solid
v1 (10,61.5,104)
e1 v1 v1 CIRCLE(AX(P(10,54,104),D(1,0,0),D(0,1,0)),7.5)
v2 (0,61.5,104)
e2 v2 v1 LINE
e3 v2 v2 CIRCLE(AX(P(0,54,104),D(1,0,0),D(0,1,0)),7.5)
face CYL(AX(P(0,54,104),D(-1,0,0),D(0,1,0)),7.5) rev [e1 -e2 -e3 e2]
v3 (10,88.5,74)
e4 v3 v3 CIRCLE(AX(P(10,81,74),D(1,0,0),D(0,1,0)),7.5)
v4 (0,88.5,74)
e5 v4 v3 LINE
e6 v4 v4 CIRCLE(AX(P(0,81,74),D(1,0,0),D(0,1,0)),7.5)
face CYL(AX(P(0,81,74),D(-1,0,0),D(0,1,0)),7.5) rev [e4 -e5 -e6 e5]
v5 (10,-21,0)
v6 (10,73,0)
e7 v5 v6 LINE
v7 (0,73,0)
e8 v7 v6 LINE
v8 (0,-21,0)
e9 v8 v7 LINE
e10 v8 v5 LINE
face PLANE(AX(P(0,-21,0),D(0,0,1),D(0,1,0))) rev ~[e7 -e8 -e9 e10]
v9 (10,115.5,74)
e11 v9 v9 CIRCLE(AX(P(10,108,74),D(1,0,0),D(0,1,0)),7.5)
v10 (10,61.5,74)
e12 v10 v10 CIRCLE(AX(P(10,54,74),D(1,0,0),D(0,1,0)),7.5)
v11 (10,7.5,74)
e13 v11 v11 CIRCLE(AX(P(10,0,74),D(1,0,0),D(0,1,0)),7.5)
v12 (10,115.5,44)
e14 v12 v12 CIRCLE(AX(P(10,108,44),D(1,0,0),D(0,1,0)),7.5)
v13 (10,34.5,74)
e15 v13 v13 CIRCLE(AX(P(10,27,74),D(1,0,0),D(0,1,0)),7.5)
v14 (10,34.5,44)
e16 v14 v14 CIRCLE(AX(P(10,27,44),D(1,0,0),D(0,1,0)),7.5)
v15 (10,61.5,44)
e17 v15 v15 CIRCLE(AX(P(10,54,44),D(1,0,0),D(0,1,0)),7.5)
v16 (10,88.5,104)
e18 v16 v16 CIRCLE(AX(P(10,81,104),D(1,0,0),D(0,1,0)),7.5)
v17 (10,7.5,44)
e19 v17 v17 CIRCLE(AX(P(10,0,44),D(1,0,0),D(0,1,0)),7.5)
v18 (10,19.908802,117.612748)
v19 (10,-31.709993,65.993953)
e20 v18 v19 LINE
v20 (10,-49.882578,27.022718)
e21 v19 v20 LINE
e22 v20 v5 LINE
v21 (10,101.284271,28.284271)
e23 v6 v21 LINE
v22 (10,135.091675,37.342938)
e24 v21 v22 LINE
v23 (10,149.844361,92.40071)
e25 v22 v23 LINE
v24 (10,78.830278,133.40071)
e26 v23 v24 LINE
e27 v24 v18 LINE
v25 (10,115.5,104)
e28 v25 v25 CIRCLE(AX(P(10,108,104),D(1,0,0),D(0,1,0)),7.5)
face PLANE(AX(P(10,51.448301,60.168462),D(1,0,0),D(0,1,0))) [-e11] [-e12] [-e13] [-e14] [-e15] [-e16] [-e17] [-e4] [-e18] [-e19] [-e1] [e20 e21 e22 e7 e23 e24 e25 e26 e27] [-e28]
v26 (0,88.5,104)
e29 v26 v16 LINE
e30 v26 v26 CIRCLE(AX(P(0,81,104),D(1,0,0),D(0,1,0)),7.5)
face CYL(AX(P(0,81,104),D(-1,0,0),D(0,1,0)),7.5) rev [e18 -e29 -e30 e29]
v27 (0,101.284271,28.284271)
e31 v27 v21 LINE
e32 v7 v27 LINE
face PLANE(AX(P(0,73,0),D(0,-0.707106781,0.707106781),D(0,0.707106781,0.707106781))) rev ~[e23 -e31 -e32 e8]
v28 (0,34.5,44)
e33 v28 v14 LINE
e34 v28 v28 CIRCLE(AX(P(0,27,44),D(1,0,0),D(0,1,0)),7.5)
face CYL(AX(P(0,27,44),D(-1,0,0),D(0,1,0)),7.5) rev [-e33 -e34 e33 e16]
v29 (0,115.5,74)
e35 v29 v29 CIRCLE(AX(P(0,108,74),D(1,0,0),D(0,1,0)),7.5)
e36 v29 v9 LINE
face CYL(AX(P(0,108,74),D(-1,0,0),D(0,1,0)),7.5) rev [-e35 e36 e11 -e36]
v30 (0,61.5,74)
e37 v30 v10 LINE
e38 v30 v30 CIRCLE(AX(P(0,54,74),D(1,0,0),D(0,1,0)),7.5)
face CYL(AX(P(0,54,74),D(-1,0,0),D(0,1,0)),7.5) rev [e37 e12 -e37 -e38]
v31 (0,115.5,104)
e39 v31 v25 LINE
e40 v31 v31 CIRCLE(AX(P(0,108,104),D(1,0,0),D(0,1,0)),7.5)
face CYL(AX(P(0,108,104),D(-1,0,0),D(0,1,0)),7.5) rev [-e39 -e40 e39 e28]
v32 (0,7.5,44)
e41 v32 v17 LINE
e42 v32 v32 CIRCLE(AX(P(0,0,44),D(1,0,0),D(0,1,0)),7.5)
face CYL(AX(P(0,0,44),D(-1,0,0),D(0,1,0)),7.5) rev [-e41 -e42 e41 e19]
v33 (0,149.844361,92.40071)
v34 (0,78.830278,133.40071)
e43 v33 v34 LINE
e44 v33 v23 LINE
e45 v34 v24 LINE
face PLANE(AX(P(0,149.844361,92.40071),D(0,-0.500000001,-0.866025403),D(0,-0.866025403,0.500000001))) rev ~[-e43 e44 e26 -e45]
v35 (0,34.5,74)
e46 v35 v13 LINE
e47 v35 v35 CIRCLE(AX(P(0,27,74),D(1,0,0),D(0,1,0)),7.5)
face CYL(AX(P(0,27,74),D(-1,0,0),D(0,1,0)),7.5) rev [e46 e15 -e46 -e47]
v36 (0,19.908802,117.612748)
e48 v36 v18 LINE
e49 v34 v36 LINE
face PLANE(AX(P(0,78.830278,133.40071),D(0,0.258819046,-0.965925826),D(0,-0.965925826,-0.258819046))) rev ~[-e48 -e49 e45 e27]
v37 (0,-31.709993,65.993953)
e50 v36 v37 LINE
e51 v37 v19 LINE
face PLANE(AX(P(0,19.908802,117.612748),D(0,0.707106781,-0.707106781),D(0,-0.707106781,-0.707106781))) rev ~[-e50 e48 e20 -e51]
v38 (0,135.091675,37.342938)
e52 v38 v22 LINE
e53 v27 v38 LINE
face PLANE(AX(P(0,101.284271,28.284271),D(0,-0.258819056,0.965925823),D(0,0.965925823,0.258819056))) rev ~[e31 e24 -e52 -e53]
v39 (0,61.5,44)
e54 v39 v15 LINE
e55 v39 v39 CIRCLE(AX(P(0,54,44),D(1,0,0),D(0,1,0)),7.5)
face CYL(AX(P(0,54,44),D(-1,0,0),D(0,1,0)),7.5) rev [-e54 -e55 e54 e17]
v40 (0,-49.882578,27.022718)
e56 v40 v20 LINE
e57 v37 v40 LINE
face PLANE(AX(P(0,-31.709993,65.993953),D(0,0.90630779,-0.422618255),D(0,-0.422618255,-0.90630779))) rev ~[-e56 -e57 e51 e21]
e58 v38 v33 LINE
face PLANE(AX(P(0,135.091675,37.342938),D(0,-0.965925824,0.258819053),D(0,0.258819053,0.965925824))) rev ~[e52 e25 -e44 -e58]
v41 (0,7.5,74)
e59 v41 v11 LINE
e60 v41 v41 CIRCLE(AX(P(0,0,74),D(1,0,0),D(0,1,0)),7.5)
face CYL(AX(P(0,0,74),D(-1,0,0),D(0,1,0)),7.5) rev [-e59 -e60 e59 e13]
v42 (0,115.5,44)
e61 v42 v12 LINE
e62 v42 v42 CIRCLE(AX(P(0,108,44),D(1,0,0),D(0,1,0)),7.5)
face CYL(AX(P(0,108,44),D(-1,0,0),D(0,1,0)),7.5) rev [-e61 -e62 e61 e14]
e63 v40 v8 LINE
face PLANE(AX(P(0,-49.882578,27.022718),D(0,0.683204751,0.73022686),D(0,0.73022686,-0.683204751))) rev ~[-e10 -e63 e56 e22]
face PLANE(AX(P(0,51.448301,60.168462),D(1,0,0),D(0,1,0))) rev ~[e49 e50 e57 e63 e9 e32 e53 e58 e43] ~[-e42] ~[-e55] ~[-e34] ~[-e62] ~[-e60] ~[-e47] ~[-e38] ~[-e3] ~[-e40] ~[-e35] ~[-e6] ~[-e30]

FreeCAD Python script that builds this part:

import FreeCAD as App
import Part
import Sketcher

V = App.Vector
Q = App.Units.Quantity

doc = App.newDocument("Part")
body = doc.addObject("PartDesign::Body", "Body")

# Sketch on YZ plane
sketch1 = body.newObject("Sketcher::SketchObject", "Sketch")
sketch1.AttachmentSupport = (doc.getObject("YZ_Plane"), [""])
sketch1.MapMode = "FlatFace"
sketch1.addGeometry([
    Part.LineSegment(V(-21, 0, 0), V(73, 0, 0)),  # 0
    Part.LineSegment(V(73, 0, 0), V(101, 28, 0)),  # 1
    Part.LineSegment(V(101, 28, 0), V(135, 37, 0)),  # 2
    Part.LineSegment(V(135, 37, 0), V(150, 92, 0)),  # 3
    Part.LineSegment(V(150, 92, 0), V(79, 133, 0)),  # 4
    Part.LineSegment(V(79, 133, 0), V(20, 118, 0)),  # 5
    Part.LineSegment(V(20, 118, 0), V(-32, 66, 0)),  # 6
    Part.LineSegment(V(-32, 66, 0), V(-50, 27, 0)),  # 7
    Part.LineSegment(V(-50, 27, 0), V(-21, 0, 0)),  # 8
    Part.Circle(V(0, 44, 0), V(0, 0, 1), 8),  # 9
    Part.Circle(V(27, 44, 0), V(0, 0, 1), 8),  # 10
    Part.Circle(V(54, 44, 0), V(0, 0, 1), 8),  # 11
    Part.Circle(V(108, 44, 0), V(0, 0, 1), 8),  # 12
    Part.Circle(V(0, 74, 0), V(0, 0, 1), 8),  # 13
    Part.Circle(V(27, 74, 0), V(0, 0, 1), 8),  # 14
    Part.Circle(V(54, 74, 0), V(0, 0, 1), 8),  # 15
    Part.Circle(V(81, 74, 0), V(0, 0, 1), 8),  # 16
    Part.Circle(V(108, 74, 0), V(0, 0, 1), 8),  # 17
    Part.Circle(V(54, 104, 0), V(0, 0, 1), 8),  # 18
    Part.Circle(V(81, 104, 0), V(0, 0, 1), 8),  # 19
    Part.Circle(V(108, 104, 0), V(0, 0, 1), 8),  # 20
], False)
sketch1.addConstraint([
    Sketcher.Constraint("Coincident", 0, 2, 1, 1),
    Sketcher.Constraint("Coincident", 1, 2, 2, 1),
    Sketcher.Constraint("Coincident", 2, 2, 3, 1),
    Sketcher.Constraint("Coincident", 3, 2, 4, 1),
    Sketcher.Constraint("Coincident", 4, 2, 5, 1),
    Sketcher.Constraint("Coincident", 5, 2, 6, 1),
    Sketcher.Constraint("Coincident", 6, 2, 7, 1),
    Sketcher.Constraint("Coincident", 7, 2, 8, 1),
    Sketcher.Constraint("Coincident", 8, 2, 0, 1),
    Sketcher.Constraint("Horizontal", 0),
    Sketcher.Constraint("Equal", 9, 10),
    Sketcher.Constraint("Equal", 10, 11),
    Sketcher.Constraint("Equal", 11, 12),
    Sketcher.Constraint("Equal", 12, 13),
    Sketcher.Constraint("Equal", 13, 14),
    Sketcher.Constraint("Equal", 14, 15),
    Sketcher.Constraint("Equal", 15, 16),
    Sketcher.Constraint("Equal", 16, 17),
    Sketcher.Constraint("Equal", 17, 18),
    Sketcher.Constraint("Equal", 18, 19),
    Sketcher.Constraint("Equal", 19, 20),
    Sketcher.Constraint("PointOnObject", 9, 3, -2),
    Sketcher.Constraint("PointOnObject", 13, 3, -2),
    Sketcher.Constraint("PointOnObject", 0, 2, -1),
    Sketcher.Constraint("Parallel", 2, 5),
    Sketcher.Constraint("Parallel", 1, 6),
    Sketcher.Constraint("Horizontal", 9, 3, 10, 3),
    Sketcher.Constraint("Horizontal", 10, 3, 11, 3),
    Sketcher.Constraint("Horizontal", 11, 3, 12, 3),
    Sketcher.Constraint("Horizontal", 13, 3, 14, 3),
    Sketcher.Constraint("Horizontal", 14, 3, 15, 3),
    Sketcher.Constraint("Horizontal", 15, 3, 16, 3),
    Sketcher.Constraint("Horizontal", 16, 3, 17, 3),
    Sketcher.Constraint("Horizontal", 18, 3, 19, 3),
    Sketcher.Constraint("Horizontal", 19, 3, 20, 3),
    Sketcher.Constraint("Vertical", 10, 3, 14, 3),
    Sketcher.Constraint("Vertical", 11, 3, 15, 3),
    Sketcher.Constraint("Vertical", 12, 3, 17, 3),
    Sketcher.Constraint("Vertical", 15, 3, 18, 3),
    Sketcher.Constraint("Vertical", 16, 3, 19, 3),
    Sketcher.Constraint("Vertical", 17, 3, 20, 3),
    Sketcher.Constraint("Diameter", 9, 15.0),
    Sketcher.Constraint("DistanceX", 0, 1, 0, 2, 94.0),
    Sketcher.Constraint("Angle", 1, Q("45 deg")),
    Sketcher.Constraint("Angle", 2, Q("15.000001 deg")),
    Sketcher.Constraint("Angle", 3, Q("75 deg")),
    Sketcher.Constraint("Angle", 4, Q("150 deg")),
    Sketcher.Constraint("Angle", 7, Q("-115 deg")),
    Sketcher.Constraint("Distance", 1, 40.0),
    Sketcher.Constraint("Distance", 2, 35.0),
    Sketcher.Constraint("Distance", 3, 57.0),
    Sketcher.Constraint("Distance", 4, 82.0),
    Sketcher.Constraint("Distance", 5, 61.000001),
    Sketcher.Constraint("Distance", 6, 73.0),
    Sketcher.Constraint("Distance", 7, 43.0),
    Sketcher.Constraint("DistanceY", -1, 1, 9, 3, 44.0),
    Sketcher.Constraint("DistanceX", -1, 1, 10, 3, 27.0),
    Sketcher.Constraint("DistanceX", -1, 1, 11, 3, 54.0),
    Sketcher.Constraint("DistanceX", -1, 1, 12, 3, 108.0),
    Sketcher.Constraint("DistanceY", -1, 1, 13, 3, 74.0),
    Sketcher.Constraint("DistanceX", -1, 1, 16, 3, 81.0),
    Sketcher.Constraint("DistanceY", -1, 1, 18, 3, 104.0),
    Sketcher.Constraint("DistanceX", -1, 1, 0, 2, 73.0),
])
pad1 = body.newObject("PartDesign::Pad", "Pad")
pad1.Profile = sketch1
pad1.Length = 10

doc.recompute()
